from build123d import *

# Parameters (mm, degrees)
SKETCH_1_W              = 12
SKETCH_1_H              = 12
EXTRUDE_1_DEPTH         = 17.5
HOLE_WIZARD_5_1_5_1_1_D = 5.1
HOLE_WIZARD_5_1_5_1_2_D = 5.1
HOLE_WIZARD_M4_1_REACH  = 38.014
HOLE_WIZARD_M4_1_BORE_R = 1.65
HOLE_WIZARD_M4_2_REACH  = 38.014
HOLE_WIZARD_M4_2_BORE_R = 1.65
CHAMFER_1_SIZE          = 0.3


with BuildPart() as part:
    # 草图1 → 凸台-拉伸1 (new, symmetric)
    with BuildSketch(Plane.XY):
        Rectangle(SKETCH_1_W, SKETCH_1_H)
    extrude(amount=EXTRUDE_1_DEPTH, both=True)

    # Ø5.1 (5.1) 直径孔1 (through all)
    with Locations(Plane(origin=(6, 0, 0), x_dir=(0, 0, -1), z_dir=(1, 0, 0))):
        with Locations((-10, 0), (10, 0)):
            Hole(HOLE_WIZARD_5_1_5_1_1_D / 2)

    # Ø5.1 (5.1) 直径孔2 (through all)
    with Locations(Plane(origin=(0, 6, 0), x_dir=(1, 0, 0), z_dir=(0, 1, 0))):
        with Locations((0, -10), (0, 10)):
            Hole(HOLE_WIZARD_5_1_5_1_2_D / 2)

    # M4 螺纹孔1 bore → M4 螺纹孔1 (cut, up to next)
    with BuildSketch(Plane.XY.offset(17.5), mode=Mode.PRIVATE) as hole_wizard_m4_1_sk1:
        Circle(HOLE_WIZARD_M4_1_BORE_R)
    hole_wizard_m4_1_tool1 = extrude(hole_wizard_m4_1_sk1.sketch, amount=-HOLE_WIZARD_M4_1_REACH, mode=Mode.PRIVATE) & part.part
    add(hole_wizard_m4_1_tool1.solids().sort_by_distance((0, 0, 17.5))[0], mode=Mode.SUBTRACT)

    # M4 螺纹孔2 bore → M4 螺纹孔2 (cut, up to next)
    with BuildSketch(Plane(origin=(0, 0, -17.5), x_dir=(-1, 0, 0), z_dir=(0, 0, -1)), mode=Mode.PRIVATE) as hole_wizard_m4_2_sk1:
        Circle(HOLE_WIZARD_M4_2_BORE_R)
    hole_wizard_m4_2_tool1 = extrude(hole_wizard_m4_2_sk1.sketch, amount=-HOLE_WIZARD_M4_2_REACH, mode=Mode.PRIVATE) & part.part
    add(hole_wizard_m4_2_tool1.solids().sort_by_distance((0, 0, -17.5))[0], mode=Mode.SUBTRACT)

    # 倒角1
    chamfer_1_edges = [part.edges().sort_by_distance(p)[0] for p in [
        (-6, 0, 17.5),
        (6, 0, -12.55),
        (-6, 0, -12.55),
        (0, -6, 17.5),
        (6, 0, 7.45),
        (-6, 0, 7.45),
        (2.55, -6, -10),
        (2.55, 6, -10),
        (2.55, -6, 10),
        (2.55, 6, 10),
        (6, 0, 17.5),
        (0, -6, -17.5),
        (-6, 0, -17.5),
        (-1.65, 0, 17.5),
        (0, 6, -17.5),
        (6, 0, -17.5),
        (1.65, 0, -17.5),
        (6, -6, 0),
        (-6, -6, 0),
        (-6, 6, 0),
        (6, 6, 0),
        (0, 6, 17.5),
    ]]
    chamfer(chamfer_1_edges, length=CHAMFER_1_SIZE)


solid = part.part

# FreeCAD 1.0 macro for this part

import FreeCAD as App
import Part
import Sketcher


def edges_at(feature, points):
    """Names of the edges that pass closest to the given points."""
    edges = feature.Shape.Edges
    near = lambda p: min(range(len(edges)), key=lambda i: edges[i].distToShape(Part.Vertex(*p))[0])
    return sorted({f"Edge{near(p) + 1}" for p in points})


def add_polygon(sketch, points):
    """Adds a closed chain of lines whose ends are joined by coincident constraints."""
    first, n = sketch.GeometryCount, len(points)
    for a, b in zip(points, points[1:] + points[:1]):
        sketch.addGeometry(Part.LineSegment(App.Vector(*a, 0), App.Vector(*b, 0)), False)
    for i in range(n):
        sketch.addConstraint(Sketcher.Constraint("Coincident", first + i, 2, first + (i + 1) % n, 1))

doc = App.newDocument("Part")
body = doc.addObject("PartDesign::Body", "Body")

# Sketch on XY plane
sketch1 = body.newObject("Sketcher::SketchObject", "Sketch")
sketch1.AttachmentSupport = (doc.getObject("XY_Plane"), [""])
sketch1.MapMode = "FlatFace"
add_polygon(sketch1, [(-6, 6), (-6, -6), (6, -6), (6, 6)])  # lines 0-3
sketch1.addConstraint(Sketcher.Constraint("Vertical", 0))
sketch1.addConstraint(Sketcher.Constraint("Horizontal", 1))
sketch1.addConstraint(Sketcher.Constraint("Vertical", 2))
sketch1.addConstraint(Sketcher.Constraint("Horizontal", 3))
sketch1.addConstraint(Sketcher.Constraint("Symmetric", 0, 2, 2, 2, -1, 1))
sketch1.addConstraint(Sketcher.Constraint("Equal", 3, 0))
sketch1.addConstraint(Sketcher.Constraint("DistanceX", 1, 1, 1, 2, 12.0))
pad1 = body.newObject("PartDesign::Pad", "Pad")
pad1.Profile = sketch1
pad1.Length = 35
pad1.Midplane = True

# Sketch on YZ plane
sketch2 = body.newObject("Sketcher::SketchObject", "Sketch001")
sketch2.AttachmentSupport = (doc.getObject("YZ_Plane"), [""])
sketch2.MapMode = "FlatFace"
sketch2.AttachmentOffset = App.Placement(App.Vector(0, 0, 6), App.Rotation())
sketch2.addGeometry(Part.Circle(App.Vector(0, 10, 0), App.Vector(0, 0, 1), 2.55), False)
sketch2.addGeometry(Part.Circle(App.Vector(0, -10, 0), App.Vector(0, 0, 1), 2.55), False)
sketch2.addConstraint(Sketcher.Constraint("Equal", 0, 1))
sketch2.addConstraint(Sketcher.Constraint("Symmetric", 0, 3, 1, 3, -1, 1))
sketch2.addConstraint(Sketcher.Constraint("PointOnObject", 0, 3, -2))
sketch2.addConstraint(Sketcher.Constraint("Diameter", 0, 5.1))
sketch2.addConstraint(Sketcher.Constraint("DistanceY", -1, 1, 0, 3, 10.0))
doc.recompute()
hole = body.newObject("PartDesign::Hole", "Hole")
hole.Profile = sketch2
hole.ThreadType = "None"
hole.Diameter = 5.1
hole.DepthType = "ThroughAll"

# Sketch on XZ plane
sketch3 = body.newObject("Sketcher::SketchObject", "Sketch002")
sketch3.AttachmentSupport = (doc.getObject("XZ_Plane"), [""])
sketch3.MapMode = "FlatFace"
sketch3.AttachmentOffset = App.Placement(App.Vector(0, 0, -6), App.Rotation())
sketch3.addGeometry(Part.Circle(App.Vector(0, 10, 0), App.Vector(0, 0, 1), 2.55), False)
sketch3.addGeometry(Part.Circle(App.Vector(0, -10, 0), App.Vector(0, 0, 1), 2.55), False)
sketch3.addConstraint(Sketcher.Constraint("Equal", 0, 1))
sketch3.addConstraint(Sketcher.Constraint("Symmetric", 0, 3, 1, 3, -1, 1))
sketch3.addConstraint(Sketcher.Constraint("PointOnObject", 0, 3, -2))
sketch3.addConstraint(Sketcher.Constraint("Diameter", 0, 5.1))
sketch3.addConstraint(Sketcher.Constraint("DistanceY", -1, 1, 0, 3, 10.0))
doc.recompute()
hole2 = body.newObject("PartDesign::Hole", "Hole001")
hole2.Profile = sketch3
hole2.ThreadType = "None"
hole2.Diameter = 5.1
hole2.DepthType = "ThroughAll"
hole2.Reversed = True

# Sketch on XY plane
sketch4 = body.newObject("Sketcher::SketchObject", "Sketch003")
sketch4.AttachmentSupport = (doc.getObject("XY_Plane"), [""])
sketch4.MapMode = "FlatFace"
sketch4.AttachmentOffset = App.Placement(App.Vector(0, 0, 17.5), App.Rotation())
sketch4.addGeometry(Part.Circle(App.Vector(0, 0, 0), App.Vector(0, 0, 1), 1.65), False)
sketch4.addConstraint(Sketcher.Constraint("Coincident", 0, 3, -1, 1))
sketch4.addConstraint(Sketcher.Constraint("Diameter", 0, 3.3))
pocket1 = body.newObject("PartDesign::Pocket", "Pocket")
pocket1.Profile = sketch4
pocket1.Length = 5.232568

# Sketch on XY plane
sketch5 = body.newObject("Sketcher::SketchObject", "Sketch004")
sketch5.AttachmentSupport = (doc.getObject("XY_Plane"), [""])
sketch5.MapMode = "FlatFace"
sketch5.AttachmentOffset = App.Placement(App.Vector(0, 0, -17.5), App.Rotation())
sketch5.addGeometry(Part.Circle(App.Vector(0, 0, 0), App.Vector(0, 0, 1), 1.65), False)
sketch5.addConstraint(Sketcher.Constraint("Coincident", 0, 3, -1, 1))
sketch5.addConstraint(Sketcher.Constraint("Diameter", 0, 3.3))
pocket2 = body.newObject("PartDesign::Pocket", "Pocket001")
pocket2.Profile = sketch5
pocket2.Length = 5.232568
pocket2.Reversed = True
doc.recompute()

chamfer = body.newObject("PartDesign::Chamfer", "Chamfer")
chamfer.Base = (pocket2, edges_at(pocket2, [
    (-6, 0, 17.5),
    (6, 0, -12.55),
    (-6, 0, -12.55),
    (0, -6, 17.5),
    (6, 0, 7.45),
    (-6, 0, 7.45),
    (2.55, -6, -10),
    (2.55, 6, -10),
    (2.55, -6, 10),
    (2.55, 6, 10),
    (6, 0, 17.5),
    (0, -6, -17.5),
    (-6, 0, -17.5),
    (-1.65, 0, 17.5),
    (0, 6, -17.5),
    (6, 0, -17.5),
    (1.65, 0, -17.5),
    (6, -6, 0),
    (-6, -6, 0),
    (-6, 6, 0),
    (6, 6, 0),
    (0, 6, 17.5),
]))
chamfer.Size = 0.3

doc.recompute()
